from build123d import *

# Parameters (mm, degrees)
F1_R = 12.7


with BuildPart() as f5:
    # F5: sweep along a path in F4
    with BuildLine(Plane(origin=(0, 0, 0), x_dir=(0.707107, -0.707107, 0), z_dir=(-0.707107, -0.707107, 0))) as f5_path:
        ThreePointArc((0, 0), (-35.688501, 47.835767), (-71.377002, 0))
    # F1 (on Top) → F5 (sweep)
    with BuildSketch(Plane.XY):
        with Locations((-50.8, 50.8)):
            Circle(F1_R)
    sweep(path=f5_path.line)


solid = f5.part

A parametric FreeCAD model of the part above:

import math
import FreeCAD as App
import Part
import Sketcher
from FreeCAD import Vector
Q = App.Units.Quantity

doc = App.newDocument("Part")
params = doc.addObject("Spreadsheet::Sheet", "Params")
for row, (alias, value) in enumerate([
    ("sketch1_diameter", "1 in"),
], start=1):
    params.set(f"A{row}", alias)
    params.set(f"B{row}", "=" + value)
    params.setAlias(f"B{row}", alias)

body = doc.addObject("PartDesign::Body", "Body")

# Sketch on XY plane
sketch1 = body.newObject("Sketcher::SketchObject", "Sketch")
sketch1.AttachmentSupport = (doc.getObject("XY_Plane"), [""])
sketch1.MapMode = "FlatFace"
sketch1.addGeometry(Part.Circle(Vector(-51, 51, 0), Vector(0, 0, 1), 13), False)
sketch1.addConstraint([
    Sketcher.Constraint("Diameter", 0, Q("1 in")),
    Sketcher.Constraint("DistanceX", 0, 3, -1, 1, Q("2 in")),
    Sketcher.Constraint("DistanceY", -1, 1, 0, 3, Q("2 in")),
])
sketch1.setExpression("Constraints[0]", "Params.sketch1_diameter")

# Sketch on an angled plane
sketch2 = body.newObject("Sketcher::SketchObject", "Sketch001")
sketch2.Placement = App.Placement(Vector(0, 0, 0), App.Rotation(Vector(-0.707106781, 0.707106781, 0), Vector(0, 0, 0.999999999), Vector(0.707106781, 0.707106781, 0), "ZXY"))
sketch2.addGeometry(Part.ArcOfCircle(Part.Circle(Vector(36, 11, 0), Vector(0, 0, 1), 37), math.radians(-17), math.radians(197)), False)
sketch2.addConstraint([
    Sketcher.Constraint("Coincident", 0, 2, -1, 1),
    Sketcher.Constraint("PointOnObject", 0, 1, -1),
    Sketcher.Constraint("Radius", 0, Q("37.23082 mm")),
    Sketcher.Constraint("DistanceX", -1, 1, 0, 3, Q("35.688501 mm")),
])
doc.recompute()

additivepipe = body.newObject("PartDesign::AdditivePipe", "AdditivePipe")
additivepipe.Profile = sketch1
additivepipe.Spine = (sketch2, ["Edge1"])

doc.recompute()
